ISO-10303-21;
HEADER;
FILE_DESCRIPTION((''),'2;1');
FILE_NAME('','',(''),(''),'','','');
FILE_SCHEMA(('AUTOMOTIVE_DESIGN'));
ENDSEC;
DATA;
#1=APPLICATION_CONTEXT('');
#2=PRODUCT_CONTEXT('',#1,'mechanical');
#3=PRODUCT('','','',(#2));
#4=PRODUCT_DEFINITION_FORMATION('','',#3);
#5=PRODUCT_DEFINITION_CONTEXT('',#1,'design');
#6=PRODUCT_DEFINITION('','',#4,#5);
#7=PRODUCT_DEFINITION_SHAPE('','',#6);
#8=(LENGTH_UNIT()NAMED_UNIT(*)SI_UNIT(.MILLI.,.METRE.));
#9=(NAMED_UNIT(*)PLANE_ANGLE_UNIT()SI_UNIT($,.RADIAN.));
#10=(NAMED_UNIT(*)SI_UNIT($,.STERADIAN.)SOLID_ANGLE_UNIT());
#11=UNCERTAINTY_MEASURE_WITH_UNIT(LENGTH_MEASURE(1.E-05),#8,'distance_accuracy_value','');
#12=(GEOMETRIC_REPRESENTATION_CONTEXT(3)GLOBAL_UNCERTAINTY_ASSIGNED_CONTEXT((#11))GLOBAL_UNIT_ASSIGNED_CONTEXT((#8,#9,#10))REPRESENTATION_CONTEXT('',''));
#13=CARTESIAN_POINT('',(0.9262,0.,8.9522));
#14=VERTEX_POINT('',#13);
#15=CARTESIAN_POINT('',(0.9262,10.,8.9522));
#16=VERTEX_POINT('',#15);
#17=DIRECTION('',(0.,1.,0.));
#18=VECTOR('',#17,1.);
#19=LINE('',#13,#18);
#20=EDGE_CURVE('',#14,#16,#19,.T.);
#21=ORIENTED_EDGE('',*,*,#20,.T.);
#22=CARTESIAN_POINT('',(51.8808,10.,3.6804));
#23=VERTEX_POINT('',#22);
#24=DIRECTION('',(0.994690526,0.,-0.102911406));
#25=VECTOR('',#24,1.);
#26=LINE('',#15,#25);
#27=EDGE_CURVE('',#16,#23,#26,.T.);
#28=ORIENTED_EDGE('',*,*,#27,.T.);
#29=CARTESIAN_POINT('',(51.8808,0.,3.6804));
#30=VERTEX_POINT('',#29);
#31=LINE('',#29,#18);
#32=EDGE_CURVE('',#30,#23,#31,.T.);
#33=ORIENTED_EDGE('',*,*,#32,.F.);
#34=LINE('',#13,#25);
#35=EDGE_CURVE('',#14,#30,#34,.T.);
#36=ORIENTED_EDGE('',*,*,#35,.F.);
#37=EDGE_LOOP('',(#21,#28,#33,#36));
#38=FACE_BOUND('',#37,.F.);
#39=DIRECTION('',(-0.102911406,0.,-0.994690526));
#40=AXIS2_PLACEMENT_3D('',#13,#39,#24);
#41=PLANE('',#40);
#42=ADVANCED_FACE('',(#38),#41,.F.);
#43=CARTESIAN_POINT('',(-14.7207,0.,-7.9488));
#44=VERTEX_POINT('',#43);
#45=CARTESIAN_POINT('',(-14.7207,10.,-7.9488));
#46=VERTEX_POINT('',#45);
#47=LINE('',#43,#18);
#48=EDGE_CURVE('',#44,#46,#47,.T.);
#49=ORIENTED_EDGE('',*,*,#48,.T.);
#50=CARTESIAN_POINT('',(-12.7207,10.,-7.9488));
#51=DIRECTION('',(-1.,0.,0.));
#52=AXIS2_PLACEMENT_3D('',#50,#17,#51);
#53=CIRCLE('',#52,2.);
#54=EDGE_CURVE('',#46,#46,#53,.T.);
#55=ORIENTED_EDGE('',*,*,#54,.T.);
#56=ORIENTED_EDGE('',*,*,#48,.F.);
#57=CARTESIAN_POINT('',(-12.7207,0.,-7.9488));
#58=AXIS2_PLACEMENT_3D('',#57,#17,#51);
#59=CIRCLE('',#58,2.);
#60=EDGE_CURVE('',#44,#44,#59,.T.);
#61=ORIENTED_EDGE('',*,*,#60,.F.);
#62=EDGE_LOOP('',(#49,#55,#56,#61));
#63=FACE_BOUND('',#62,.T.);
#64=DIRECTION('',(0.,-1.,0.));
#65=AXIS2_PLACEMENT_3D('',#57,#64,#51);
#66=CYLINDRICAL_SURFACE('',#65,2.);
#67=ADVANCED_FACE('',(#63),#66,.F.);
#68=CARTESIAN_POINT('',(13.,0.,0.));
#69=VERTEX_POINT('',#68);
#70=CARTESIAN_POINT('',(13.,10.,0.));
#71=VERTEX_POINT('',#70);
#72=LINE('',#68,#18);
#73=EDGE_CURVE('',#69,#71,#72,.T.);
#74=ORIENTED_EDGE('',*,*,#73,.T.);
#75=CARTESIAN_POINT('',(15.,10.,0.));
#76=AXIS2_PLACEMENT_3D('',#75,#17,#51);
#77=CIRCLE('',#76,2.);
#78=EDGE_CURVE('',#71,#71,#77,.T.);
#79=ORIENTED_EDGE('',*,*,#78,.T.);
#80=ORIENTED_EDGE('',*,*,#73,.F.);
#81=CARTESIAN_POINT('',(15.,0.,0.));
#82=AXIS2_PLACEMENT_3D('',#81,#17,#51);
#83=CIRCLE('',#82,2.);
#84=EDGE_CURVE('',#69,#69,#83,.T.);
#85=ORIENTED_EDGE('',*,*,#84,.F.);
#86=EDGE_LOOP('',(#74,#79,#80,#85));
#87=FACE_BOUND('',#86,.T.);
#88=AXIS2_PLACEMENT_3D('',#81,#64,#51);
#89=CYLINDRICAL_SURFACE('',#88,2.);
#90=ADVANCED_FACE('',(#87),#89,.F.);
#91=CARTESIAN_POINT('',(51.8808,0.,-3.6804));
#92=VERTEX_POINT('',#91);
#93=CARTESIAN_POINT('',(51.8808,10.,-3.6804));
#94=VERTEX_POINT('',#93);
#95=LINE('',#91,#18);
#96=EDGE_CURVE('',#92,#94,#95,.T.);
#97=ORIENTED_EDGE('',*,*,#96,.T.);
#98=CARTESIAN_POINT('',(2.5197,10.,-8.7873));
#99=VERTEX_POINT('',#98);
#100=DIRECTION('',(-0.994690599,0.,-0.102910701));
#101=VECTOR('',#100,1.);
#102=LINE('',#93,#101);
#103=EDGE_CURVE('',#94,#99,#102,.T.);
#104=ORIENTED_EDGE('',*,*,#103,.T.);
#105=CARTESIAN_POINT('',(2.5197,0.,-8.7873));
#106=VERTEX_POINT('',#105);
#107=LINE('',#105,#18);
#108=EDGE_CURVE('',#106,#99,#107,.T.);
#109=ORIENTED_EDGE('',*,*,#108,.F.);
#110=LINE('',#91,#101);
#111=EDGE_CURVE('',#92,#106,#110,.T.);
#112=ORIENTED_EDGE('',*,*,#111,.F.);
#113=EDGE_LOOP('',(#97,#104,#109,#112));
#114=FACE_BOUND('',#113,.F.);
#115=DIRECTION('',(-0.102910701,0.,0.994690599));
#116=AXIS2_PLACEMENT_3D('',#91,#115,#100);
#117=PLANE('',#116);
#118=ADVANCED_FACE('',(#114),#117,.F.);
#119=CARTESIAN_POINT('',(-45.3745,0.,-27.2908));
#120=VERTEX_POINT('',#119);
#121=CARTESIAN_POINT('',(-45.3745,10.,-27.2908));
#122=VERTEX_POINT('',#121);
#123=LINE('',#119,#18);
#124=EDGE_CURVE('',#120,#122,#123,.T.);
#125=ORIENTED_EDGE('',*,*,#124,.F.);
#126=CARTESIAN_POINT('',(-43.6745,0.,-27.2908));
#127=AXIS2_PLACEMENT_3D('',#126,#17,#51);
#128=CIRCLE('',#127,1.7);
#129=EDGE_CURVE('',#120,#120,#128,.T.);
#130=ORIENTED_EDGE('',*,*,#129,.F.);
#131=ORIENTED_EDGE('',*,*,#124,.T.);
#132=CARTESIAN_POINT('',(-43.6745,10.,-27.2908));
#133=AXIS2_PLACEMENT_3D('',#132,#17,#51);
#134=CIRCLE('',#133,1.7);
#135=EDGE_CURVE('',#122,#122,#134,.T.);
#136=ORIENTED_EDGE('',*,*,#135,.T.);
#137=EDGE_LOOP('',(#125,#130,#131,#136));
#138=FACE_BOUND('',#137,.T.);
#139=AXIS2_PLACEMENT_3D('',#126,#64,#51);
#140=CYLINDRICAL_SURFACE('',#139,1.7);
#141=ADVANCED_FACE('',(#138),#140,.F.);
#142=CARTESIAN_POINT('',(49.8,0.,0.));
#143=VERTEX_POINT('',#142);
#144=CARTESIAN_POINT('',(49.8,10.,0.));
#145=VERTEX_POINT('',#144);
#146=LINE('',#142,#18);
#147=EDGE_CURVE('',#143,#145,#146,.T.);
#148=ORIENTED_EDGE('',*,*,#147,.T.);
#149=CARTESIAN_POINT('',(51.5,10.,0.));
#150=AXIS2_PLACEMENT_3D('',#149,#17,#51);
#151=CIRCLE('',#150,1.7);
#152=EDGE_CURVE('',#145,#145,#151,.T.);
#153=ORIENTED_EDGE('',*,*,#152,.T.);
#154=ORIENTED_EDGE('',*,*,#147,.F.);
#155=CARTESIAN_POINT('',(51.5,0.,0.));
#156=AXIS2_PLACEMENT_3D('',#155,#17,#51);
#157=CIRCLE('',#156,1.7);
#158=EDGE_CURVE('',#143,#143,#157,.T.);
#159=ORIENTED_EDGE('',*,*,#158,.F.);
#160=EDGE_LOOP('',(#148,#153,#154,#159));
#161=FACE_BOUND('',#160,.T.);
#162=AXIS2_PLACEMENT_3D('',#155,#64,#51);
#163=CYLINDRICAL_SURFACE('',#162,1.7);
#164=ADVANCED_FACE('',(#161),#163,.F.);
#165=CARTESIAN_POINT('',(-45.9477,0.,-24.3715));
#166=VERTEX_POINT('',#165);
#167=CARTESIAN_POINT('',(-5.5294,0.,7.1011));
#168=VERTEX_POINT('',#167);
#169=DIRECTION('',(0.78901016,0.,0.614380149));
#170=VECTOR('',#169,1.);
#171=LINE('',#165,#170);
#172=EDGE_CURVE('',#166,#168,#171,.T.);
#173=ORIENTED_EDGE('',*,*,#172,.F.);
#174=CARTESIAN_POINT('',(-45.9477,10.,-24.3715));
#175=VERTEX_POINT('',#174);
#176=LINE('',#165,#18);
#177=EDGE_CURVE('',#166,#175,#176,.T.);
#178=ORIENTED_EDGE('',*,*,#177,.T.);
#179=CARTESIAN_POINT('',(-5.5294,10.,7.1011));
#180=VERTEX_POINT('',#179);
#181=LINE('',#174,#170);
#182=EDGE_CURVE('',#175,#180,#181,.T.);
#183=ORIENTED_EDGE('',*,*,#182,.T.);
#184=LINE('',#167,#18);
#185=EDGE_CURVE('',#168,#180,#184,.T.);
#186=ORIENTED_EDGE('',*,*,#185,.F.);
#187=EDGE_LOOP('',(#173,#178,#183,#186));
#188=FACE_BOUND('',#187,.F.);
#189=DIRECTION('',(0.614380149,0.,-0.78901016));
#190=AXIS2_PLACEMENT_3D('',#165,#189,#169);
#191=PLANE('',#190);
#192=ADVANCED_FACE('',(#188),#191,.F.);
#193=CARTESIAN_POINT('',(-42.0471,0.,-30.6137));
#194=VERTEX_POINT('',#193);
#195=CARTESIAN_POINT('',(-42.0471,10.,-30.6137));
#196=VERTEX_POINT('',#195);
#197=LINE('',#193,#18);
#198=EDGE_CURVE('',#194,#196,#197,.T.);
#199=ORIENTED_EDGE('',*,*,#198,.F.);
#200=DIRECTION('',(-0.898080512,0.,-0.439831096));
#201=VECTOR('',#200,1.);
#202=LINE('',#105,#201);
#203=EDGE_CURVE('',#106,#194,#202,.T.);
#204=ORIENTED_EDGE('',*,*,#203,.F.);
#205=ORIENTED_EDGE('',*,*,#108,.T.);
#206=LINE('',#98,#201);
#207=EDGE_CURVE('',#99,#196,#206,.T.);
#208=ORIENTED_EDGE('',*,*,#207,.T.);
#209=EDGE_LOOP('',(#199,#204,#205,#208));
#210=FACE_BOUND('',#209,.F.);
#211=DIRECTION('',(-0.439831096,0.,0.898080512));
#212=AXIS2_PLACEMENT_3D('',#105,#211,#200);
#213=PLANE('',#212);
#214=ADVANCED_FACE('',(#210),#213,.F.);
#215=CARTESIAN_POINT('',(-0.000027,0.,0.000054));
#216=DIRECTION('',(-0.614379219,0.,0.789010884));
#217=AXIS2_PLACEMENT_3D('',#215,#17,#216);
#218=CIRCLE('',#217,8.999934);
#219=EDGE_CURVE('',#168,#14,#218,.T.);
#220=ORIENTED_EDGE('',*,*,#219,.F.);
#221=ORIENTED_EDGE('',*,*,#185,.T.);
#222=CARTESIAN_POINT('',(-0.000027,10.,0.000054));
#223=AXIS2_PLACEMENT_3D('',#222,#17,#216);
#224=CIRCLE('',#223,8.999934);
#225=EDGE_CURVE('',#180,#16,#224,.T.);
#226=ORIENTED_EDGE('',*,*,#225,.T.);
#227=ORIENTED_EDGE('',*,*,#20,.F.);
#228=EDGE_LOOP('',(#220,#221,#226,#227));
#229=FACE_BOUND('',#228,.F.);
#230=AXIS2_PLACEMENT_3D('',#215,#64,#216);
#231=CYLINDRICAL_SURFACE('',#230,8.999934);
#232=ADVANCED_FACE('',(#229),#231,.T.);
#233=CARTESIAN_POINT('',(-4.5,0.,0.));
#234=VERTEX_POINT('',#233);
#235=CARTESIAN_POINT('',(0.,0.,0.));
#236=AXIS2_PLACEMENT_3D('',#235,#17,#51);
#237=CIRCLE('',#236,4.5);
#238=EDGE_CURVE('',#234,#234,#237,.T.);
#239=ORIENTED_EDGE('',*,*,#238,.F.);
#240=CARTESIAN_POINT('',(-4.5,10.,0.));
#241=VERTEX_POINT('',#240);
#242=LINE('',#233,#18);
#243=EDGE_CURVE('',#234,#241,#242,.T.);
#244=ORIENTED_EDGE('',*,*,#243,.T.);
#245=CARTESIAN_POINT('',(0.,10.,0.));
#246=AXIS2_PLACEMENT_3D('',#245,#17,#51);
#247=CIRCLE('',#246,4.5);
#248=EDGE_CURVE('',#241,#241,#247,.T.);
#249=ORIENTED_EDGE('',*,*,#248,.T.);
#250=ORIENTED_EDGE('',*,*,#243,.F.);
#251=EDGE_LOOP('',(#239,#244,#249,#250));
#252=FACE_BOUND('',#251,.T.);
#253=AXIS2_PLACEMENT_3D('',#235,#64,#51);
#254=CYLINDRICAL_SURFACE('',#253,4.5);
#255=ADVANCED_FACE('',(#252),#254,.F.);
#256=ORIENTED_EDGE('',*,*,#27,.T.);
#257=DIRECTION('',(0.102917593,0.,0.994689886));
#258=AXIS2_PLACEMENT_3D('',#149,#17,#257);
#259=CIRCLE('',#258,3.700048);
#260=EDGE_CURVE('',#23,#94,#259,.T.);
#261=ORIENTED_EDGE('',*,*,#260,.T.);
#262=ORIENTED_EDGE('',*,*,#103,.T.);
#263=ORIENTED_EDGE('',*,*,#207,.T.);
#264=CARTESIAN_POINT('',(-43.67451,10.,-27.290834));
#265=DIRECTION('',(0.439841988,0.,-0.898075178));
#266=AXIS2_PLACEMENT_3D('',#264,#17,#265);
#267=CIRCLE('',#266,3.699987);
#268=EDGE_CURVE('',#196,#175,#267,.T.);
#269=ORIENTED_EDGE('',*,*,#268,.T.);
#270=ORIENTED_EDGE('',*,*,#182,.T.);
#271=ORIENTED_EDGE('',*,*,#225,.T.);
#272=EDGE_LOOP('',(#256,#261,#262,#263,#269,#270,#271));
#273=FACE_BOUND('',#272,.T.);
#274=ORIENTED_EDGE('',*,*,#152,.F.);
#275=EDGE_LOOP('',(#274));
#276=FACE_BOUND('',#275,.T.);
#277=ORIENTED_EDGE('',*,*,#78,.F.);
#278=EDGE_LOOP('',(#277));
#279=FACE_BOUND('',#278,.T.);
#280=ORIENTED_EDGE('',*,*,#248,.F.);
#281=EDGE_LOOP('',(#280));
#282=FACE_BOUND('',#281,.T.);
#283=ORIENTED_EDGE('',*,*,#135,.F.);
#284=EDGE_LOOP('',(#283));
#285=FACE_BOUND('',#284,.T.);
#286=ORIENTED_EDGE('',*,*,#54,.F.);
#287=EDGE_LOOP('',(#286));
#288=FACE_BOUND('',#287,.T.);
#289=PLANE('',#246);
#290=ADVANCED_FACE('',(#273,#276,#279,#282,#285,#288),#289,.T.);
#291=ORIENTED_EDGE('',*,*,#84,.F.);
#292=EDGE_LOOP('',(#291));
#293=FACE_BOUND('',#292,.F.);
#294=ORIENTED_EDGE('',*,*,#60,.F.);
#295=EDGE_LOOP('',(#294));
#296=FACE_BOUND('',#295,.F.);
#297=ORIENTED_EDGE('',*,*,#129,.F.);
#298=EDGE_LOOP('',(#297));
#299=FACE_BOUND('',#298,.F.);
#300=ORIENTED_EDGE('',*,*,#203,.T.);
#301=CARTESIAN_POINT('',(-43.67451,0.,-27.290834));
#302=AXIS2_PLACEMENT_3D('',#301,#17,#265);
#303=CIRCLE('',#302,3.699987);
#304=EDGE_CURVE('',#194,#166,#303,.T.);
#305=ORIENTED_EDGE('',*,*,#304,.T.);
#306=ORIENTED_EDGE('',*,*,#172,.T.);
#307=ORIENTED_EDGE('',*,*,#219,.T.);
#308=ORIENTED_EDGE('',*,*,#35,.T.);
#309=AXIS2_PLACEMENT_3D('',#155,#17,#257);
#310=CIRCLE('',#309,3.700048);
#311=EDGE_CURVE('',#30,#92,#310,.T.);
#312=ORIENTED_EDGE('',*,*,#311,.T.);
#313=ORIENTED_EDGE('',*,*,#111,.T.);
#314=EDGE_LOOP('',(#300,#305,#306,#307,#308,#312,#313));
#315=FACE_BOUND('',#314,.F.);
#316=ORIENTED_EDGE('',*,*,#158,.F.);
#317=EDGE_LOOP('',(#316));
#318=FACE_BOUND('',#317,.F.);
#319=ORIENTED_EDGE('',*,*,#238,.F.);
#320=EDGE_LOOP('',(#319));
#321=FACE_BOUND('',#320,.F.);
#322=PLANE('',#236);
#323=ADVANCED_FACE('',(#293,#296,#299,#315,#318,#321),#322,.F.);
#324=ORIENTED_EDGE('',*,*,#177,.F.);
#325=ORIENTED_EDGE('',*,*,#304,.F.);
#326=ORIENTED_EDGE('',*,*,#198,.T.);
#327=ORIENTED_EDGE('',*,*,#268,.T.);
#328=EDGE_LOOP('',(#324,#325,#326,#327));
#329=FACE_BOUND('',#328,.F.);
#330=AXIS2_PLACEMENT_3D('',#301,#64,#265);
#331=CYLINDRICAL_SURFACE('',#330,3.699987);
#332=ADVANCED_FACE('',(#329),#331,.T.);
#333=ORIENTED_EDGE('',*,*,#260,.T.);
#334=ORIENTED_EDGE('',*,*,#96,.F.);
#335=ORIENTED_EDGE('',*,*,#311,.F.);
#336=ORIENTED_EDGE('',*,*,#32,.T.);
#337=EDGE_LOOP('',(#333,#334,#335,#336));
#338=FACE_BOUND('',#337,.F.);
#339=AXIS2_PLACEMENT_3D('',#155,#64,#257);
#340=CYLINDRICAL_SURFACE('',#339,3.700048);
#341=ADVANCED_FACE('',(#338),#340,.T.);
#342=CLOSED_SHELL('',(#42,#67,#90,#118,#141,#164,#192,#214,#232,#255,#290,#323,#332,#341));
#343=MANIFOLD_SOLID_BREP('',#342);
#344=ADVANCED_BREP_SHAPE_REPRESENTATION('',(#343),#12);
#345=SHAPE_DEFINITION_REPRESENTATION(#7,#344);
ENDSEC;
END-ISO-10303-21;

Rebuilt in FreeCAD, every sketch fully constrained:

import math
import FreeCAD as App
import Part
import Sketcher

V = App.Vector
Q = App.Units.Quantity

doc = App.newDocument("Part")
params = doc.addObject("Spreadsheet::Sheet", "Params")
for row, (alias, value) in enumerate([
    ("sketch1_diameter", "4 mm"),
    ("sketch1_diameter2", "9 mm"),
    ("sketch1_radius", "9 mm"),
    ("sketch1_diameter3", "3.4 mm"),
    ("sketch1_radius2", "3.7 mm"),
    ("pad1_length", "10 mm"),
], start=1):
    params.set(f"A{row}", alias)
    params.set(f"B{row}", "=" + value)
    params.setAlias(f"B{row}", alias)

body = doc.addObject("PartDesign::Body", "Body")

sketch1 = body.newObject("Sketcher::SketchObject", "Sketch")
sketch1.AttachmentSupport = (doc.getObject("XZ_Plane"), [""])
sketch1.MapMode = "FlatFace"
sketch1.addGeometry([
    Part.LineSegment(V(2.5197, -8.7873, 0), V(-42.0471, -30.6137, 0)),
    Part.ArcOfCircle(Part.Circle(V(-43.6745, -27.2908, 0), V(0, 0, 1), 3.700013), math.radians(127.907172), math.radians(296.093437)),
    Part.LineSegment(V(-45.9477, -24.3715, 0), V(-5.5294, 7.1011, 0)),
    Part.ArcOfCircle(Part.Circle(V(0, 0, 0), V(0, 0, 1), 8.999985), math.radians(84.09316), math.radians(127.906754)),
    Part.LineSegment(V(0.9262, 8.9522, 0), V(51.8808, 3.6804, 0)),
    Part.ArcOfCircle(Part.Circle(V(51.5, 0, 0), V(0, 0, 1), 3.700048), math.radians(-84.092797), math.radians(84.092797)),
    Part.LineSegment(V(51.8808, -3.6804, 0), V(2.5197, -8.7873, 0)),
    Part.Circle(V(-43.6745, -27.2908, 0), V(0, 0, 1), 1.7),
    Part.Circle(V(51.5, 0, 0), V(0, 0, 1), 1.7),
    Part.Circle(V(15, 0, 0), V(0, 0, 1), 2),
    Part.Circle(V(-12.7207, -7.9488, 0), V(0, 0, 1), 2),
    Part.Circle(V(0, 0, 0), V(0, 0, 1), 4.5),
], False)
sketch1.addConstraint([
    Sketcher.Constraint("Tangent", 0, 2, 1, 2),
    Sketcher.Constraint("Tangent", 1, 1, 2, 1),
    Sketcher.Constraint("Tangent", 2, 2, 3, 2),
    Sketcher.Constraint("Tangent", 3, 1, 4, 1),
    Sketcher.Constraint("Tangent", 4, 2, 5, 2),
    Sketcher.Constraint("Tangent", 5, 1, 6, 1),
    Sketcher.Constraint("Coincident", 6, 2, 0, 1),
    Sketcher.Constraint("Coincident", 3, 3, -1, 1),
    Sketcher.Constraint("Coincident", 11, 3, -1, 1),
    Sketcher.Constraint("Coincident", 7, 3, 1, 3),
    Sketcher.Constraint("Coincident", 8, 3, 5, 3),
    Sketcher.Constraint("Equal", 1, 5),
    Sketcher.Constraint("Equal", 7, 8),
    Sketcher.Constraint("Equal", 9, 10),
    Sketcher.Constraint("Symmetric", 4, 2, 5, 1, -1),
    Sketcher.Constraint("PointOnObject", 9, 3, -1),
    Sketcher.Constraint("Equal", 2, 4),
    Sketcher.Constraint("Equal", 0, 6),
    Sketcher.Constraint("Diameter", 9, Q("4 mm")),
    Sketcher.Constraint("Diameter", 11, Q("9 mm")),
    Sketcher.Constraint("Radius", 3, Q("9 mm")),
    Sketcher.Constraint("Diameter", 7, Q("3.4 mm")),
    Sketcher.Constraint("Radius", 1, Q("3.7 mm")),
    Sketcher.Constraint("DistanceX", -1, 1, 9, 3, Q("15 mm")),
    Sketcher.Constraint("DistanceX", -1, 1, 5, 3, Q("51.5 mm")),
    Sketcher.Constraint("DistanceY", 10, 3, 2, 2, Q("15.05 mm")),
    Sketcher.Constraint("DistanceX", 0, 2, -1, 1, Q("42.047 mm")),
    Sketcher.Constraint("DistanceX", 1, 1, 10, 3, Q("33.227 mm")),
])
sketch1.setExpression("Constraints[18]", "Params.sketch1_diameter")
sketch1.setExpression("Constraints[19]", "Params.sketch1_diameter2")
sketch1.setExpression("Constraints[20]", "Params.sketch1_radius")
sketch1.setExpression("Constraints[21]", "Params.sketch1_diameter3")
sketch1.setExpression("Constraints[22]", "Params.sketch1_radius2")
pad1 = body.newObject("PartDesign::Pad", "Pad")
pad1.Profile = sketch1
pad1.setExpression("Length", "Params.pad1_length")
pad1.Reversed = True

doc.recompute()
